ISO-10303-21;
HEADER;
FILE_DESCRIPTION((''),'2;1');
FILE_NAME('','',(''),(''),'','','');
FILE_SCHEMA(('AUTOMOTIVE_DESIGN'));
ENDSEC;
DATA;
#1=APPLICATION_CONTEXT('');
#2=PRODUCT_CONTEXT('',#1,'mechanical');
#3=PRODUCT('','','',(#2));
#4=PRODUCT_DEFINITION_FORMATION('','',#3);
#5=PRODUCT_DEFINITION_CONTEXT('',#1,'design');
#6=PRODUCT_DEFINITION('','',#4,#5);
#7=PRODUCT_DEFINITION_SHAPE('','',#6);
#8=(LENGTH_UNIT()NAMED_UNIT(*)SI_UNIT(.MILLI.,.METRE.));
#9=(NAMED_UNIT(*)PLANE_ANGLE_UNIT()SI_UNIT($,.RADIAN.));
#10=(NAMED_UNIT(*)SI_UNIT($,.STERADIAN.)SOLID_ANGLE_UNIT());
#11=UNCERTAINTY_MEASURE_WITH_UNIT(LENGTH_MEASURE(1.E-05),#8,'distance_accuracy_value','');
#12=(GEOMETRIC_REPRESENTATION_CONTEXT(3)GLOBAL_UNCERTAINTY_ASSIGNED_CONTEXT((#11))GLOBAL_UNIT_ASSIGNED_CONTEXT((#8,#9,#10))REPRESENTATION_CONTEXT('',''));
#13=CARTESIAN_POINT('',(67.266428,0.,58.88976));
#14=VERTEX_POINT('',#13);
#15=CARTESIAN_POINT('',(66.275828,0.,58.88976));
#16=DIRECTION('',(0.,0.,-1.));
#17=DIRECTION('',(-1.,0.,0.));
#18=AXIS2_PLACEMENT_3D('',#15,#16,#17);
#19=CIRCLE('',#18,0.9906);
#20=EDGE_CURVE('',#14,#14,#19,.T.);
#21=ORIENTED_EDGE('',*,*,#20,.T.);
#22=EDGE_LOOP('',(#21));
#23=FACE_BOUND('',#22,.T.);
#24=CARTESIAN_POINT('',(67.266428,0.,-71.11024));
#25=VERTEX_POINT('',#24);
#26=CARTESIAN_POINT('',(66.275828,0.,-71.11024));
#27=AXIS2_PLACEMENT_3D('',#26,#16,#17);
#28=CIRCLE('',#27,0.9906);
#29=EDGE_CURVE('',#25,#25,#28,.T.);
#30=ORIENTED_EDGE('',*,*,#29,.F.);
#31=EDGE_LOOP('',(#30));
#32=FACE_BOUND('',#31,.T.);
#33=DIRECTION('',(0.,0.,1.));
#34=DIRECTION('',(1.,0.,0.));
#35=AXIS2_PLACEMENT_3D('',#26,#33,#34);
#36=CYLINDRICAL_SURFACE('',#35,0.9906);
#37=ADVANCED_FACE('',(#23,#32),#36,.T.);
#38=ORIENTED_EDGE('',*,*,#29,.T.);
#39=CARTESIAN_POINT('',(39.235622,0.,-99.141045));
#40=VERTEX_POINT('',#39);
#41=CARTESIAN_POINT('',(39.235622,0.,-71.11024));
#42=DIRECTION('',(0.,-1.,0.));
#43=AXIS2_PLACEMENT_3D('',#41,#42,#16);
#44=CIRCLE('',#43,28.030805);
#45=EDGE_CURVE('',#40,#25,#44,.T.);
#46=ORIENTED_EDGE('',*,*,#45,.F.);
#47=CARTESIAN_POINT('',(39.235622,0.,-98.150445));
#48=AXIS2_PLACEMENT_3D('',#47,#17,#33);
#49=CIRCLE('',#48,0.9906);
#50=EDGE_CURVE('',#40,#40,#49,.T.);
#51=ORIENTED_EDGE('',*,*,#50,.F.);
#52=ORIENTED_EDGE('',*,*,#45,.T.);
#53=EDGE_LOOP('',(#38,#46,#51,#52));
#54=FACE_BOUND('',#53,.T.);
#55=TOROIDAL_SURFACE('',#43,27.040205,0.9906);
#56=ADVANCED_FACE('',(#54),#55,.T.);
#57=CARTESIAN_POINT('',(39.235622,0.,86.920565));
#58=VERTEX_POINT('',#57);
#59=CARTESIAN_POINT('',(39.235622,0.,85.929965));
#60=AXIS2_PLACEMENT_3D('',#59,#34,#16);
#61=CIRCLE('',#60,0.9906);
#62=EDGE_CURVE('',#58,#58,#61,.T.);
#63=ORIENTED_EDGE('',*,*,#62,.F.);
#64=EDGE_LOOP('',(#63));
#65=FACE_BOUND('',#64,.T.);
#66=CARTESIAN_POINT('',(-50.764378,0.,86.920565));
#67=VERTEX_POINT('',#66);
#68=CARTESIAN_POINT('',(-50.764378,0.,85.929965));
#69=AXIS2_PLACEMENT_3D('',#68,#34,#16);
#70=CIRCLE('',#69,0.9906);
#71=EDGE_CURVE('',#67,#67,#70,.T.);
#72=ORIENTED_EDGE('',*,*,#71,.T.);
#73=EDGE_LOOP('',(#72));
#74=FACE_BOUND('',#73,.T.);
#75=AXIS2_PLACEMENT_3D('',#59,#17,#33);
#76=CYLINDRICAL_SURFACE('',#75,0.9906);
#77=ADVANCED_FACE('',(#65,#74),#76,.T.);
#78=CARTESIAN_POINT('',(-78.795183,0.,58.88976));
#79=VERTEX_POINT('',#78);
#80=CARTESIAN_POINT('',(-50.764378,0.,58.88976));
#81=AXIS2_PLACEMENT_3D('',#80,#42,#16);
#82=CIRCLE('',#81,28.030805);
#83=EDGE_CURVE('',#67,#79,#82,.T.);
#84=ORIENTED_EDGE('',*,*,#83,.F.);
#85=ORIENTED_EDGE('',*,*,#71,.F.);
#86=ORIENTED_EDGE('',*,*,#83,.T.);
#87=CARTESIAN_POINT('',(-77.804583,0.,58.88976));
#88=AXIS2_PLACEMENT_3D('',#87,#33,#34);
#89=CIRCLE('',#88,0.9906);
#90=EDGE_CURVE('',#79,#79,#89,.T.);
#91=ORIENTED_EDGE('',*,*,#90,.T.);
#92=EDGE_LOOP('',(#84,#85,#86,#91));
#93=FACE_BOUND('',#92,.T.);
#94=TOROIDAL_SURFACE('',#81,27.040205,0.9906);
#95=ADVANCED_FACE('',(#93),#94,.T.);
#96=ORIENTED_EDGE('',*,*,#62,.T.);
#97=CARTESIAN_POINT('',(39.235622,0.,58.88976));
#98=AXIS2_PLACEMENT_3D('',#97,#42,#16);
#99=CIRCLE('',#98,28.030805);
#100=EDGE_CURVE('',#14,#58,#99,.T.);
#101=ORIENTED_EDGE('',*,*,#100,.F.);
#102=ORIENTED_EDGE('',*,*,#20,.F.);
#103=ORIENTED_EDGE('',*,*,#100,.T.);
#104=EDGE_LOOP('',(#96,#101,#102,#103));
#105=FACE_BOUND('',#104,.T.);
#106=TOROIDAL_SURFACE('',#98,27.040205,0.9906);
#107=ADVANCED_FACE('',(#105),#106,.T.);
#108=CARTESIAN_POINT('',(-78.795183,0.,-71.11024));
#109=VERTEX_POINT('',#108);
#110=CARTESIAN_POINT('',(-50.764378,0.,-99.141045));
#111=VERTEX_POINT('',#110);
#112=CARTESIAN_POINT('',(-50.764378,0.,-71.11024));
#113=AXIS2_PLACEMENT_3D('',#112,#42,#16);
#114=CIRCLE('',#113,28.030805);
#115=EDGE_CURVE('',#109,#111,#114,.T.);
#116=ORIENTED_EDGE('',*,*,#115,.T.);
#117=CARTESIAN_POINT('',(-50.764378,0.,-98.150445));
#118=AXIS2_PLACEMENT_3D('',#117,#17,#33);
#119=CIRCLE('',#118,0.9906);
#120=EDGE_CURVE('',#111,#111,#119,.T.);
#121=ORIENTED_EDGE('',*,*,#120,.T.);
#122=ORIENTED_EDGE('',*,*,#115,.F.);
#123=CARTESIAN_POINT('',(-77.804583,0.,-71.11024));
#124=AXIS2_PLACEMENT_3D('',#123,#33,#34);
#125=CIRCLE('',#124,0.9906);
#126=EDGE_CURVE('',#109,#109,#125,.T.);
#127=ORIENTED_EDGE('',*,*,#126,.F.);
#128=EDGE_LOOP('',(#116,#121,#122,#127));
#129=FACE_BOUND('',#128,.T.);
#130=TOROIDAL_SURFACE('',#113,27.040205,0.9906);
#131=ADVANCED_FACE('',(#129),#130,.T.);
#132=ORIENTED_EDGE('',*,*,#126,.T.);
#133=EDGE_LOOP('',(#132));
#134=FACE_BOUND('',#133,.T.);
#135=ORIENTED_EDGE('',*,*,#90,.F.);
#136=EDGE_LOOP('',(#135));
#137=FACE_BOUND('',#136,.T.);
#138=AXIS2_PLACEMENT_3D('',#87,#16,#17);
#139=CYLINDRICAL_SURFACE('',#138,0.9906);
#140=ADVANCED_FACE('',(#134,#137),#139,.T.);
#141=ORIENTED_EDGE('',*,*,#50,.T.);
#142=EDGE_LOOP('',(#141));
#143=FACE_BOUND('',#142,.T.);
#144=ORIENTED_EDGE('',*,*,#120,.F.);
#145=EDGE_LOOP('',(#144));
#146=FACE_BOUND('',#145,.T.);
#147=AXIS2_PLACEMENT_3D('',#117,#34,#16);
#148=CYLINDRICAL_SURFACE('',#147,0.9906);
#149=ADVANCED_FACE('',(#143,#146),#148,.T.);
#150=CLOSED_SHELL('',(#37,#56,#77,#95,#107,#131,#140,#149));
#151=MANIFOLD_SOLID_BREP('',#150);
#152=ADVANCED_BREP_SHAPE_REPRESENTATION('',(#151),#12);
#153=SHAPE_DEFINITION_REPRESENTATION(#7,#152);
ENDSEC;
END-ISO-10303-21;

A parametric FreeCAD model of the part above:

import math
import FreeCAD as App
import Part
import Sketcher
Q = App.Units.Quantity

doc = App.newDocument("Part")
params = doc.addObject("Spreadsheet::Sheet", "Params")
for row, (alias, value) in enumerate([
    ("sketch2_width", "90 mm"),
    ("sketch2_height", "130 mm"),
], start=1):
    params.set(f"A{row}", alias)
    params.set(f"B{row}", "=" + value)
    params.setAlias(f"B{row}", alias)

body = doc.addObject("PartDesign::Body", "Body")

sketch1 = body.newObject("Sketcher::SketchObject", "Sketch")
sketch1.AttachmentSupport = (doc.getObject("XY_Plane"), [""])
sketch1.MapMode = "FlatFace"
sketch1.AttachmentOffset = App.Placement(App.Vector(0, 0, -71.11024), App.Rotation())
sketch1.addGeometry(Part.Circle(App.Vector(66.275828, 0, 0), App.Vector(0, 0, 1), 0.9906), False)
sketch1.addConstraint([
    Sketcher.Constraint("PointOnObject", 0, 3, -1),
    Sketcher.Constraint("Diameter", 0, Q("1.9812 mm")),
    Sketcher.Constraint("DistanceX", -1, 1, 0, 3, Q("66.275828 mm")),
])

sketch2 = body.newObject("Sketcher::SketchObject", "Sketch001")
sketch2.AttachmentSupport = (doc.getObject("XZ_Plane"), [""])
sketch2.MapMode = "FlatFace"
sketch2.addGeometry([
    Part.LineSegment(App.Vector(66.275828, 58.88976, 0), App.Vector(66.275828, -71.11024, 0)),
    Part.ArcOfCircle(Part.Circle(App.Vector(39.235622, -71.11024, 0), App.Vector(0, 0, 1), 27.040205), math.radians(-90), math.radians(0)),
    Part.LineSegment(App.Vector(39.235622, -98.150445, 0), App.Vector(-50.764378, -98.150445, 0)),
    Part.ArcOfCircle(Part.Circle(App.Vector(-50.764378, -71.11024, 0), App.Vector(0, 0, 1), 27.040205), math.radians(-180), math.radians(-90)),
    Part.LineSegment(App.Vector(-77.804583, -71.11024, 0), App.Vector(-77.804583, 58.88976, 0)),
    Part.ArcOfCircle(Part.Circle(App.Vector(-50.764378, 58.88976, 0), App.Vector(0, 0, 1), 27.040205), math.radians(90), math.radians(180)),
    Part.LineSegment(App.Vector(-50.764378, 85.929965, 0), App.Vector(39.235622, 85.929965, 0)),
    Part.ArcOfCircle(Part.Circle(App.Vector(39.235622, 58.88976, 0), App.Vector(0, 0, 1), 27.040205), math.radians(0), math.radians(90)),
], False)
sketch2.addConstraint([
    Sketcher.Constraint("Tangent", 0, 2, 1, 2),
    Sketcher.Constraint("Tangent", 1, 1, 2, 1),
    Sketcher.Constraint("Tangent", 2, 2, 3, 2),
    Sketcher.Constraint("Tangent", 3, 1, 4, 1),
    Sketcher.Constraint("Tangent", 4, 2, 5, 2),
    Sketcher.Constraint("Tangent", 5, 1, 6, 1),
    Sketcher.Constraint("Tangent", 6, 2, 7, 2),
    Sketcher.Constraint("Tangent", 7, 1, 0, 1),
    Sketcher.Constraint("Vertical", 0),
    Sketcher.Constraint("Horizontal", 2),
    Sketcher.Constraint("Vertical", 4),
    Sketcher.Constraint("Horizontal", 6),
    Sketcher.Constraint("Equal", 1, 3),
    Sketcher.Constraint("Equal", 3, 5),
    Sketcher.Constraint("Equal", 5, 7),
    Sketcher.Constraint("DistanceX", 2, 2, 2, 1, Q("90 mm")),
    Sketcher.Constraint("DistanceY", 0, 2, 0, 1, Q("130 mm")),
    Sketcher.Constraint("Radius", 1, Q("27.040205 mm")),
    Sketcher.Constraint("DistanceY", 1, 3, -1, 1, Q("71.11024 mm")),
    Sketcher.Constraint("DistanceX", -1, 1, 1, 3, Q("39.235622 mm")),
])
sketch2.setExpression("Constraints[15]", "Params.sketch2_width")
sketch2.setExpression("Constraints[16]", "Params.sketch2_height")
doc.recompute()

additivepipe = body.newObject("PartDesign::AdditivePipe", "AdditivePipe")
additivepipe.Profile = sketch1
additivepipe.Spine = (sketch2, ["Edge1", "Edge2", "Edge3", "Edge4", "Edge5", "Edge6", "Edge7", "Edge8"])

doc.recompute()
